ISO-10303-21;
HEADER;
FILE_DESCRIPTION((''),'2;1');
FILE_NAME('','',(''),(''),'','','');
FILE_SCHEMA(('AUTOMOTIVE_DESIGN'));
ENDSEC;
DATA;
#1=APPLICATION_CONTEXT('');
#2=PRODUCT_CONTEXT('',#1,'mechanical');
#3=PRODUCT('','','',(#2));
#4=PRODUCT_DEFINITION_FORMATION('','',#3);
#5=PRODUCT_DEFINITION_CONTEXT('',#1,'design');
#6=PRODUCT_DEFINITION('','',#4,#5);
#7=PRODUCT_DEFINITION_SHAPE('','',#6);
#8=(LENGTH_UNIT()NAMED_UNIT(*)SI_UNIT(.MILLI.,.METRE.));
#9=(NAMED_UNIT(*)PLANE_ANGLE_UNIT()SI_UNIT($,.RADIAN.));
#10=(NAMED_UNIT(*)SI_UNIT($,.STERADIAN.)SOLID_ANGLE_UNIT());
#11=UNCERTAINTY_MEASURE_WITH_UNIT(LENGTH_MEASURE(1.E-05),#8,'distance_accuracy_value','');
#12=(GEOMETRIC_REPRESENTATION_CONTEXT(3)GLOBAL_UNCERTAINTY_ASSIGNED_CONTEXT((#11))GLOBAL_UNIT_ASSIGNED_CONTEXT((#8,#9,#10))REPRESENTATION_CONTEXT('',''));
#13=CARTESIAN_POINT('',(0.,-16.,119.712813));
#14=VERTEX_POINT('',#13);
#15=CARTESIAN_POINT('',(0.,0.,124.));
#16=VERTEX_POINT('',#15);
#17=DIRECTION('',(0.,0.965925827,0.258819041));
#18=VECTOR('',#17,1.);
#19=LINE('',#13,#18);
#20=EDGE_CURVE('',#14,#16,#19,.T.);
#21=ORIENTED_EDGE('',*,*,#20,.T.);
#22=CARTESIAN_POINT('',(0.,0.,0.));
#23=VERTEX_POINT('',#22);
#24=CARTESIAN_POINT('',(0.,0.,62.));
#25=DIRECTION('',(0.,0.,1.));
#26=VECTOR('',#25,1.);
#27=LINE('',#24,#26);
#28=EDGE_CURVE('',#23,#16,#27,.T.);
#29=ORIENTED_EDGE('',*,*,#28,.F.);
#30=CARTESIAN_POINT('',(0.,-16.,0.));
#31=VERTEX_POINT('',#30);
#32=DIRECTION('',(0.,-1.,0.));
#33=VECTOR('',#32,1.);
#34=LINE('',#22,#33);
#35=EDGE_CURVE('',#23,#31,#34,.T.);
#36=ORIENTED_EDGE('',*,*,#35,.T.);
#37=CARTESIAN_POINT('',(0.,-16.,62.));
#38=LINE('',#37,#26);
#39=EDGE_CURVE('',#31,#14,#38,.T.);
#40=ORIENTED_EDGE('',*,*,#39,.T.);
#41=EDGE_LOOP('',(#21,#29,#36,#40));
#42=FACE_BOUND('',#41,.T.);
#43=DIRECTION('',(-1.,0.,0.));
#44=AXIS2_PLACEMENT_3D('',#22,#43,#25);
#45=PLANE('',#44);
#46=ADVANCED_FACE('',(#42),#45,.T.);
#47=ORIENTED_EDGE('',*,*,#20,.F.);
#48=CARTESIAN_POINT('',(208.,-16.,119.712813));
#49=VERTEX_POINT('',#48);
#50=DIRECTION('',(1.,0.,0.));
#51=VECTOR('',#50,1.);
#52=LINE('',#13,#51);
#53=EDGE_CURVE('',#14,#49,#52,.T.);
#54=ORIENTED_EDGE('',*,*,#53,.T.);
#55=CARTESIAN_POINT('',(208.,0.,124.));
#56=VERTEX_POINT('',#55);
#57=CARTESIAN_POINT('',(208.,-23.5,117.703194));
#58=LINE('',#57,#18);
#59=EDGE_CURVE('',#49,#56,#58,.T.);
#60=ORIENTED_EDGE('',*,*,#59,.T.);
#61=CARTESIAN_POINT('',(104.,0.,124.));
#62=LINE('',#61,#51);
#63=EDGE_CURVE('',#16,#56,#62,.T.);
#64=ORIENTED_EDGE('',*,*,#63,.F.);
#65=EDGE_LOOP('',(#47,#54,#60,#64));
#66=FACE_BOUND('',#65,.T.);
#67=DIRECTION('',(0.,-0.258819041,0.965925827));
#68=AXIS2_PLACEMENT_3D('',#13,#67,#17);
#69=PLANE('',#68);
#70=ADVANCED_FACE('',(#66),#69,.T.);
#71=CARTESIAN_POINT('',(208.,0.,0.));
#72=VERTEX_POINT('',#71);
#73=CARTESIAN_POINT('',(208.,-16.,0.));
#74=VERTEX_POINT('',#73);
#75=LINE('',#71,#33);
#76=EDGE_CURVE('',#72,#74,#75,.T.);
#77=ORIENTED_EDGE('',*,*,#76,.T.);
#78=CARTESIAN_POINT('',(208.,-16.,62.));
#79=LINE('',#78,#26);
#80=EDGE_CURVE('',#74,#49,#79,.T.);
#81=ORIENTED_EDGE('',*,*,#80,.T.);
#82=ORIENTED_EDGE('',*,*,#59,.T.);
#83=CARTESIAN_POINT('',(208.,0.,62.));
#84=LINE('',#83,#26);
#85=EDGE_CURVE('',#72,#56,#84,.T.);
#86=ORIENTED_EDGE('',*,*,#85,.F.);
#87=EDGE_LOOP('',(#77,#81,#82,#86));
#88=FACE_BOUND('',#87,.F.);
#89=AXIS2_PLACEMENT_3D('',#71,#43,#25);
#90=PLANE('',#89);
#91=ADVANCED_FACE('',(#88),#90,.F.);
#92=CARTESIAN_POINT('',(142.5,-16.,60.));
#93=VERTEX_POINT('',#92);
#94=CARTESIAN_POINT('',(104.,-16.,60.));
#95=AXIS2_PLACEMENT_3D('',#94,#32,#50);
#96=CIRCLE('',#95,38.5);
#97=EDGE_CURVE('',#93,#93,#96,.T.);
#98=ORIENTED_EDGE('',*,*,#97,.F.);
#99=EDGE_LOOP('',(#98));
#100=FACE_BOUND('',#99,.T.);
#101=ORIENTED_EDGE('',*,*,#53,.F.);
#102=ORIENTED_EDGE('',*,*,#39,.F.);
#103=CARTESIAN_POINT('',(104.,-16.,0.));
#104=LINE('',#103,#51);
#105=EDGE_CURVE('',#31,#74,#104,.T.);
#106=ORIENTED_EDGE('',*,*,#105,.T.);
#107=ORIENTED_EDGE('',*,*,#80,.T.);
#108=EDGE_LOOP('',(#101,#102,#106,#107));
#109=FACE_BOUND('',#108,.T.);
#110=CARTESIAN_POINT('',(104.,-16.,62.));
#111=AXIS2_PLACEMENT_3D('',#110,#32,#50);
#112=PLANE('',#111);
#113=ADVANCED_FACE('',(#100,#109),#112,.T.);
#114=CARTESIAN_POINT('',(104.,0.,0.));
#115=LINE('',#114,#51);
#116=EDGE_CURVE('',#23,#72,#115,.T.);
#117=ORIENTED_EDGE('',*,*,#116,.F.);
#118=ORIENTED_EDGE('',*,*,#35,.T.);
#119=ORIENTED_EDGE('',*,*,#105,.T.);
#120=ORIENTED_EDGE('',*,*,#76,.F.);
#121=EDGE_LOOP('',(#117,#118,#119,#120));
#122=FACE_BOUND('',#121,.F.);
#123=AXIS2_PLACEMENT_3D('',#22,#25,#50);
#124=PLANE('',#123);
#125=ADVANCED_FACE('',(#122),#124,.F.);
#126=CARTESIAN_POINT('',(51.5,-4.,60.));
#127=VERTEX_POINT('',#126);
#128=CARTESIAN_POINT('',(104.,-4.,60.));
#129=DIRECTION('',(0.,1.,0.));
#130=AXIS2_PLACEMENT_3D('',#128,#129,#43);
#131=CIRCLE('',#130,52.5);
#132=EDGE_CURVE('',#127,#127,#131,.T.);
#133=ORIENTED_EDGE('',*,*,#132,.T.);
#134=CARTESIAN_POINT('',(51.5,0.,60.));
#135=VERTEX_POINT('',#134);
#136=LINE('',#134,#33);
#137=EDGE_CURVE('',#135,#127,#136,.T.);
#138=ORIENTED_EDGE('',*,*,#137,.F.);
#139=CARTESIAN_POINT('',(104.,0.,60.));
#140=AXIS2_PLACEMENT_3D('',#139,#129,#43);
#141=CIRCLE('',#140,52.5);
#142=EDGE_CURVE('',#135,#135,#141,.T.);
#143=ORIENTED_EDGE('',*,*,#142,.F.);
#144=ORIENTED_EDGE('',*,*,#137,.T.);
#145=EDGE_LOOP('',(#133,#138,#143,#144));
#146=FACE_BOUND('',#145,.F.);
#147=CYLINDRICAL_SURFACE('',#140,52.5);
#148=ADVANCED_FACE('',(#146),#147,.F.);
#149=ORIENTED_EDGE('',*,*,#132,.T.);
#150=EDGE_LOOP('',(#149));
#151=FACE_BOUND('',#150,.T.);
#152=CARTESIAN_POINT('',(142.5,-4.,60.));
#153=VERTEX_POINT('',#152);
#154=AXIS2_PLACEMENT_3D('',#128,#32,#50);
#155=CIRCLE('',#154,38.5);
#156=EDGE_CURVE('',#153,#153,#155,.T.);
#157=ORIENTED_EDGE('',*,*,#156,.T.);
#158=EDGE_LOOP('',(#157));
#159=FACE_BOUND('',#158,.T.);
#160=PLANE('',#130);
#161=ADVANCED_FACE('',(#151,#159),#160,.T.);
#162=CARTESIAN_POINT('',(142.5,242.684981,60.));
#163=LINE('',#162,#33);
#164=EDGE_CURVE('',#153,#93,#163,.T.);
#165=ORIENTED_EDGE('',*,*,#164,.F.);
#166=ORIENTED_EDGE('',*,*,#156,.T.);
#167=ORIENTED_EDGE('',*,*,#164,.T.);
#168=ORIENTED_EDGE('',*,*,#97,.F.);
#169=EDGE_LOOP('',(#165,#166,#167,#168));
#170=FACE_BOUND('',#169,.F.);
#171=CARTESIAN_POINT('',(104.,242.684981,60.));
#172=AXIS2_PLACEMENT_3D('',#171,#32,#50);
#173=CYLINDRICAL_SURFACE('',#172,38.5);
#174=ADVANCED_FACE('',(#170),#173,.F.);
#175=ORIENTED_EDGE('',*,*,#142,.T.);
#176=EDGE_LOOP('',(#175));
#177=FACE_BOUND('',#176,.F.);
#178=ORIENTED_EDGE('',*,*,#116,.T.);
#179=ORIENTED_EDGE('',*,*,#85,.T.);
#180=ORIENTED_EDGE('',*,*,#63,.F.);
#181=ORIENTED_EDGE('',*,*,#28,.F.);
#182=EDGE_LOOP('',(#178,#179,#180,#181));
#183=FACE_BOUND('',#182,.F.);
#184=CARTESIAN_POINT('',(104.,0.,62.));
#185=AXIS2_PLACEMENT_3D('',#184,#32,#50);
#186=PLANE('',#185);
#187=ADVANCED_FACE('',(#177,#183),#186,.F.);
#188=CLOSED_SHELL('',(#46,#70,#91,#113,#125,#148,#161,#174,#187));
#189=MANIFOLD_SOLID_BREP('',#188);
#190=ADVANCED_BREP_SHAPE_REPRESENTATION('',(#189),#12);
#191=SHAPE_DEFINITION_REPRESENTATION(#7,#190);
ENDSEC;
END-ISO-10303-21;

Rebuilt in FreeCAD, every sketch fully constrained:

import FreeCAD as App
import Part
import Sketcher

V = App.Vector
Q = App.Units.Quantity

doc = App.newDocument("Part")
params = doc.addObject("Spreadsheet::Sheet", "Params")
for row, (alias, value) in enumerate([
    ("sketch1_width", "208 mm"),
    ("sketch1_height", "124 mm"),
    ("pad1_length", "16 mm"),
    ("sketch2_width", "16 mm"),
    ("pocket1_length", "240 mm"),
    ("sketch3_diameter", "77 mm"),
    ("hole_diameter", "77 mm"),
    ("sketch4_diameter", "105 mm"),
    ("pocket2_length", "4 mm"),
], start=1):
    params.set(f"A{row}", alias)
    params.set(f"B{row}", "=" + value)
    params.setAlias(f"B{row}", alias)

body = doc.addObject("PartDesign::Body", "Body")

sketch1 = doc.addObject("Sketcher::SketchObject", "Sketch")
body.addObject(sketch1)
sketch1.AttachmentSupport = (doc.XZ_Plane, [""])
sketch1.MapMode = "FlatFace"
sketch1.addGeometry([
    Part.LineSegment(V(0, 124, 0), V(0, 0, 0)),
    Part.LineSegment(V(0, 0, 0), V(208, 0, 0)),
    Part.LineSegment(V(208, 0, 0), V(208, 124, 0)),
    Part.LineSegment(V(208, 124, 0), V(0, 124, 0)),
], False)
sketch1.addConstraint([
    Sketcher.Constraint("Coincident", 0, 2, 1, 1),
    Sketcher.Constraint("Coincident", 1, 2, 2, 1),
    Sketcher.Constraint("Coincident", 2, 2, 3, 1),
    Sketcher.Constraint("Coincident", 3, 2, 0, 1),
    Sketcher.Constraint("Vertical", 0),
    Sketcher.Constraint("Horizontal", 1),
    Sketcher.Constraint("Vertical", 2),
    Sketcher.Constraint("Horizontal", 3),
    Sketcher.Constraint("Coincident", 0, 2, -1, 1),
    Sketcher.Constraint("DistanceX", 1, 1, 1, 2, 208.0),
    Sketcher.Constraint("DistanceY", 0, 2, 0, 1, 124.0),
])
sketch1.setExpression("Constraints[9]", "Params.sketch1_width")
sketch1.setExpression("Constraints[10]", "Params.sketch1_height")
pad1 = doc.addObject("PartDesign::Pad", "Pad")
body.addObject(pad1)
pad1.Profile = sketch1
pad1.setExpression("Length", "Params.pad1_length")

sketch2 = doc.addObject("Sketcher::SketchObject", "Sketch001")
body.addObject(sketch2)
sketch2.AttachmentSupport = (doc.YZ_Plane, [""])
sketch2.MapMode = "FlatFace"
sketch2.addGeometry([
    Part.LineSegment(V(-16, 119.7, 0), V(0, 124, 0)),
    Part.LineSegment(V(0, 124, 0), V(-16, 124, 0)),
    Part.LineSegment(V(-16, 124, 0), V(-16, 119.7, 0)),
], False)
sketch2.addConstraint([
    Sketcher.Constraint("Coincident", 0, 2, 1, 1),
    Sketcher.Constraint("Coincident", 1, 2, 2, 1),
    Sketcher.Constraint("Coincident", 2, 2, 0, 1),
    Sketcher.Constraint("Horizontal", 1),
    Sketcher.Constraint("Vertical", 2),
    Sketcher.Constraint("PointOnObject", 0, 2, -2),
    Sketcher.Constraint("DistanceX", 1, 2, 1, 1, 16.0),
    Sketcher.Constraint("Angle", 0, Q("15 deg")),
    Sketcher.Constraint("DistanceY", -1, 1, 0, 2, 124.0),
])
sketch2.setExpression("Constraints[6]", "Params.sketch2_width")
pocket1 = doc.addObject("PartDesign::Pocket", "Pocket")
body.addObject(pocket1)
pocket1.Profile = sketch2
pocket1.setExpression("Length", "Params.pocket1_length")
pocket1.Reversed = True

sketch3 = doc.addObject("Sketcher::SketchObject", "Sketch002")
body.addObject(sketch3)
sketch3.AttachmentSupport = (doc.XZ_Plane, [""])
sketch3.MapMode = "FlatFace"
sketch3.addGeometry(Part.Circle(V(104, 60, 0), V(0, 0, 1), 38), False)
sketch3.addConstraint([
    Sketcher.Constraint("Diameter", 0, 77.0),
    Sketcher.Constraint("DistanceX", -1, 1, 0, 3, 104.0),
    Sketcher.Constraint("DistanceY", -1, 1, 0, 3, 60.0),
])
sketch3.setExpression("Constraints[0]", "Params.sketch3_diameter")
doc.recompute()
hole = doc.addObject("PartDesign::Hole", "Hole")
body.addObject(hole)
hole.Profile = sketch3
hole.ThreadType = "None"
hole.setExpression("Diameter", "Params.hole_diameter")
hole.DepthType = "ThroughAll"
hole.Reversed = True

sketch4 = doc.addObject("Sketcher::SketchObject", "Sketch003")
body.addObject(sketch4)
sketch4.AttachmentSupport = (doc.XZ_Plane, [""])
sketch4.MapMode = "FlatFace"
sketch4.addGeometry(Part.Circle(V(104, 60, 0), V(0, 0, 1), 52), False)
sketch4.addConstraint([
    Sketcher.Constraint("Diameter", 0, 105.0),
    Sketcher.Constraint("DistanceX", -1, 1, 0, 3, 104.0),
    Sketcher.Constraint("DistanceY", -1, 1, 0, 3, 60.0),
])
sketch4.setExpression("Constraints[0]", "Params.sketch4_diameter")
pocket2 = doc.addObject("PartDesign::Pocket", "Pocket001")
body.addObject(pocket2)
pocket2.Profile = sketch4
pocket2.setExpression("Length", "Params.pocket2_length")
pocket2.Reversed = True

doc.recompute()
